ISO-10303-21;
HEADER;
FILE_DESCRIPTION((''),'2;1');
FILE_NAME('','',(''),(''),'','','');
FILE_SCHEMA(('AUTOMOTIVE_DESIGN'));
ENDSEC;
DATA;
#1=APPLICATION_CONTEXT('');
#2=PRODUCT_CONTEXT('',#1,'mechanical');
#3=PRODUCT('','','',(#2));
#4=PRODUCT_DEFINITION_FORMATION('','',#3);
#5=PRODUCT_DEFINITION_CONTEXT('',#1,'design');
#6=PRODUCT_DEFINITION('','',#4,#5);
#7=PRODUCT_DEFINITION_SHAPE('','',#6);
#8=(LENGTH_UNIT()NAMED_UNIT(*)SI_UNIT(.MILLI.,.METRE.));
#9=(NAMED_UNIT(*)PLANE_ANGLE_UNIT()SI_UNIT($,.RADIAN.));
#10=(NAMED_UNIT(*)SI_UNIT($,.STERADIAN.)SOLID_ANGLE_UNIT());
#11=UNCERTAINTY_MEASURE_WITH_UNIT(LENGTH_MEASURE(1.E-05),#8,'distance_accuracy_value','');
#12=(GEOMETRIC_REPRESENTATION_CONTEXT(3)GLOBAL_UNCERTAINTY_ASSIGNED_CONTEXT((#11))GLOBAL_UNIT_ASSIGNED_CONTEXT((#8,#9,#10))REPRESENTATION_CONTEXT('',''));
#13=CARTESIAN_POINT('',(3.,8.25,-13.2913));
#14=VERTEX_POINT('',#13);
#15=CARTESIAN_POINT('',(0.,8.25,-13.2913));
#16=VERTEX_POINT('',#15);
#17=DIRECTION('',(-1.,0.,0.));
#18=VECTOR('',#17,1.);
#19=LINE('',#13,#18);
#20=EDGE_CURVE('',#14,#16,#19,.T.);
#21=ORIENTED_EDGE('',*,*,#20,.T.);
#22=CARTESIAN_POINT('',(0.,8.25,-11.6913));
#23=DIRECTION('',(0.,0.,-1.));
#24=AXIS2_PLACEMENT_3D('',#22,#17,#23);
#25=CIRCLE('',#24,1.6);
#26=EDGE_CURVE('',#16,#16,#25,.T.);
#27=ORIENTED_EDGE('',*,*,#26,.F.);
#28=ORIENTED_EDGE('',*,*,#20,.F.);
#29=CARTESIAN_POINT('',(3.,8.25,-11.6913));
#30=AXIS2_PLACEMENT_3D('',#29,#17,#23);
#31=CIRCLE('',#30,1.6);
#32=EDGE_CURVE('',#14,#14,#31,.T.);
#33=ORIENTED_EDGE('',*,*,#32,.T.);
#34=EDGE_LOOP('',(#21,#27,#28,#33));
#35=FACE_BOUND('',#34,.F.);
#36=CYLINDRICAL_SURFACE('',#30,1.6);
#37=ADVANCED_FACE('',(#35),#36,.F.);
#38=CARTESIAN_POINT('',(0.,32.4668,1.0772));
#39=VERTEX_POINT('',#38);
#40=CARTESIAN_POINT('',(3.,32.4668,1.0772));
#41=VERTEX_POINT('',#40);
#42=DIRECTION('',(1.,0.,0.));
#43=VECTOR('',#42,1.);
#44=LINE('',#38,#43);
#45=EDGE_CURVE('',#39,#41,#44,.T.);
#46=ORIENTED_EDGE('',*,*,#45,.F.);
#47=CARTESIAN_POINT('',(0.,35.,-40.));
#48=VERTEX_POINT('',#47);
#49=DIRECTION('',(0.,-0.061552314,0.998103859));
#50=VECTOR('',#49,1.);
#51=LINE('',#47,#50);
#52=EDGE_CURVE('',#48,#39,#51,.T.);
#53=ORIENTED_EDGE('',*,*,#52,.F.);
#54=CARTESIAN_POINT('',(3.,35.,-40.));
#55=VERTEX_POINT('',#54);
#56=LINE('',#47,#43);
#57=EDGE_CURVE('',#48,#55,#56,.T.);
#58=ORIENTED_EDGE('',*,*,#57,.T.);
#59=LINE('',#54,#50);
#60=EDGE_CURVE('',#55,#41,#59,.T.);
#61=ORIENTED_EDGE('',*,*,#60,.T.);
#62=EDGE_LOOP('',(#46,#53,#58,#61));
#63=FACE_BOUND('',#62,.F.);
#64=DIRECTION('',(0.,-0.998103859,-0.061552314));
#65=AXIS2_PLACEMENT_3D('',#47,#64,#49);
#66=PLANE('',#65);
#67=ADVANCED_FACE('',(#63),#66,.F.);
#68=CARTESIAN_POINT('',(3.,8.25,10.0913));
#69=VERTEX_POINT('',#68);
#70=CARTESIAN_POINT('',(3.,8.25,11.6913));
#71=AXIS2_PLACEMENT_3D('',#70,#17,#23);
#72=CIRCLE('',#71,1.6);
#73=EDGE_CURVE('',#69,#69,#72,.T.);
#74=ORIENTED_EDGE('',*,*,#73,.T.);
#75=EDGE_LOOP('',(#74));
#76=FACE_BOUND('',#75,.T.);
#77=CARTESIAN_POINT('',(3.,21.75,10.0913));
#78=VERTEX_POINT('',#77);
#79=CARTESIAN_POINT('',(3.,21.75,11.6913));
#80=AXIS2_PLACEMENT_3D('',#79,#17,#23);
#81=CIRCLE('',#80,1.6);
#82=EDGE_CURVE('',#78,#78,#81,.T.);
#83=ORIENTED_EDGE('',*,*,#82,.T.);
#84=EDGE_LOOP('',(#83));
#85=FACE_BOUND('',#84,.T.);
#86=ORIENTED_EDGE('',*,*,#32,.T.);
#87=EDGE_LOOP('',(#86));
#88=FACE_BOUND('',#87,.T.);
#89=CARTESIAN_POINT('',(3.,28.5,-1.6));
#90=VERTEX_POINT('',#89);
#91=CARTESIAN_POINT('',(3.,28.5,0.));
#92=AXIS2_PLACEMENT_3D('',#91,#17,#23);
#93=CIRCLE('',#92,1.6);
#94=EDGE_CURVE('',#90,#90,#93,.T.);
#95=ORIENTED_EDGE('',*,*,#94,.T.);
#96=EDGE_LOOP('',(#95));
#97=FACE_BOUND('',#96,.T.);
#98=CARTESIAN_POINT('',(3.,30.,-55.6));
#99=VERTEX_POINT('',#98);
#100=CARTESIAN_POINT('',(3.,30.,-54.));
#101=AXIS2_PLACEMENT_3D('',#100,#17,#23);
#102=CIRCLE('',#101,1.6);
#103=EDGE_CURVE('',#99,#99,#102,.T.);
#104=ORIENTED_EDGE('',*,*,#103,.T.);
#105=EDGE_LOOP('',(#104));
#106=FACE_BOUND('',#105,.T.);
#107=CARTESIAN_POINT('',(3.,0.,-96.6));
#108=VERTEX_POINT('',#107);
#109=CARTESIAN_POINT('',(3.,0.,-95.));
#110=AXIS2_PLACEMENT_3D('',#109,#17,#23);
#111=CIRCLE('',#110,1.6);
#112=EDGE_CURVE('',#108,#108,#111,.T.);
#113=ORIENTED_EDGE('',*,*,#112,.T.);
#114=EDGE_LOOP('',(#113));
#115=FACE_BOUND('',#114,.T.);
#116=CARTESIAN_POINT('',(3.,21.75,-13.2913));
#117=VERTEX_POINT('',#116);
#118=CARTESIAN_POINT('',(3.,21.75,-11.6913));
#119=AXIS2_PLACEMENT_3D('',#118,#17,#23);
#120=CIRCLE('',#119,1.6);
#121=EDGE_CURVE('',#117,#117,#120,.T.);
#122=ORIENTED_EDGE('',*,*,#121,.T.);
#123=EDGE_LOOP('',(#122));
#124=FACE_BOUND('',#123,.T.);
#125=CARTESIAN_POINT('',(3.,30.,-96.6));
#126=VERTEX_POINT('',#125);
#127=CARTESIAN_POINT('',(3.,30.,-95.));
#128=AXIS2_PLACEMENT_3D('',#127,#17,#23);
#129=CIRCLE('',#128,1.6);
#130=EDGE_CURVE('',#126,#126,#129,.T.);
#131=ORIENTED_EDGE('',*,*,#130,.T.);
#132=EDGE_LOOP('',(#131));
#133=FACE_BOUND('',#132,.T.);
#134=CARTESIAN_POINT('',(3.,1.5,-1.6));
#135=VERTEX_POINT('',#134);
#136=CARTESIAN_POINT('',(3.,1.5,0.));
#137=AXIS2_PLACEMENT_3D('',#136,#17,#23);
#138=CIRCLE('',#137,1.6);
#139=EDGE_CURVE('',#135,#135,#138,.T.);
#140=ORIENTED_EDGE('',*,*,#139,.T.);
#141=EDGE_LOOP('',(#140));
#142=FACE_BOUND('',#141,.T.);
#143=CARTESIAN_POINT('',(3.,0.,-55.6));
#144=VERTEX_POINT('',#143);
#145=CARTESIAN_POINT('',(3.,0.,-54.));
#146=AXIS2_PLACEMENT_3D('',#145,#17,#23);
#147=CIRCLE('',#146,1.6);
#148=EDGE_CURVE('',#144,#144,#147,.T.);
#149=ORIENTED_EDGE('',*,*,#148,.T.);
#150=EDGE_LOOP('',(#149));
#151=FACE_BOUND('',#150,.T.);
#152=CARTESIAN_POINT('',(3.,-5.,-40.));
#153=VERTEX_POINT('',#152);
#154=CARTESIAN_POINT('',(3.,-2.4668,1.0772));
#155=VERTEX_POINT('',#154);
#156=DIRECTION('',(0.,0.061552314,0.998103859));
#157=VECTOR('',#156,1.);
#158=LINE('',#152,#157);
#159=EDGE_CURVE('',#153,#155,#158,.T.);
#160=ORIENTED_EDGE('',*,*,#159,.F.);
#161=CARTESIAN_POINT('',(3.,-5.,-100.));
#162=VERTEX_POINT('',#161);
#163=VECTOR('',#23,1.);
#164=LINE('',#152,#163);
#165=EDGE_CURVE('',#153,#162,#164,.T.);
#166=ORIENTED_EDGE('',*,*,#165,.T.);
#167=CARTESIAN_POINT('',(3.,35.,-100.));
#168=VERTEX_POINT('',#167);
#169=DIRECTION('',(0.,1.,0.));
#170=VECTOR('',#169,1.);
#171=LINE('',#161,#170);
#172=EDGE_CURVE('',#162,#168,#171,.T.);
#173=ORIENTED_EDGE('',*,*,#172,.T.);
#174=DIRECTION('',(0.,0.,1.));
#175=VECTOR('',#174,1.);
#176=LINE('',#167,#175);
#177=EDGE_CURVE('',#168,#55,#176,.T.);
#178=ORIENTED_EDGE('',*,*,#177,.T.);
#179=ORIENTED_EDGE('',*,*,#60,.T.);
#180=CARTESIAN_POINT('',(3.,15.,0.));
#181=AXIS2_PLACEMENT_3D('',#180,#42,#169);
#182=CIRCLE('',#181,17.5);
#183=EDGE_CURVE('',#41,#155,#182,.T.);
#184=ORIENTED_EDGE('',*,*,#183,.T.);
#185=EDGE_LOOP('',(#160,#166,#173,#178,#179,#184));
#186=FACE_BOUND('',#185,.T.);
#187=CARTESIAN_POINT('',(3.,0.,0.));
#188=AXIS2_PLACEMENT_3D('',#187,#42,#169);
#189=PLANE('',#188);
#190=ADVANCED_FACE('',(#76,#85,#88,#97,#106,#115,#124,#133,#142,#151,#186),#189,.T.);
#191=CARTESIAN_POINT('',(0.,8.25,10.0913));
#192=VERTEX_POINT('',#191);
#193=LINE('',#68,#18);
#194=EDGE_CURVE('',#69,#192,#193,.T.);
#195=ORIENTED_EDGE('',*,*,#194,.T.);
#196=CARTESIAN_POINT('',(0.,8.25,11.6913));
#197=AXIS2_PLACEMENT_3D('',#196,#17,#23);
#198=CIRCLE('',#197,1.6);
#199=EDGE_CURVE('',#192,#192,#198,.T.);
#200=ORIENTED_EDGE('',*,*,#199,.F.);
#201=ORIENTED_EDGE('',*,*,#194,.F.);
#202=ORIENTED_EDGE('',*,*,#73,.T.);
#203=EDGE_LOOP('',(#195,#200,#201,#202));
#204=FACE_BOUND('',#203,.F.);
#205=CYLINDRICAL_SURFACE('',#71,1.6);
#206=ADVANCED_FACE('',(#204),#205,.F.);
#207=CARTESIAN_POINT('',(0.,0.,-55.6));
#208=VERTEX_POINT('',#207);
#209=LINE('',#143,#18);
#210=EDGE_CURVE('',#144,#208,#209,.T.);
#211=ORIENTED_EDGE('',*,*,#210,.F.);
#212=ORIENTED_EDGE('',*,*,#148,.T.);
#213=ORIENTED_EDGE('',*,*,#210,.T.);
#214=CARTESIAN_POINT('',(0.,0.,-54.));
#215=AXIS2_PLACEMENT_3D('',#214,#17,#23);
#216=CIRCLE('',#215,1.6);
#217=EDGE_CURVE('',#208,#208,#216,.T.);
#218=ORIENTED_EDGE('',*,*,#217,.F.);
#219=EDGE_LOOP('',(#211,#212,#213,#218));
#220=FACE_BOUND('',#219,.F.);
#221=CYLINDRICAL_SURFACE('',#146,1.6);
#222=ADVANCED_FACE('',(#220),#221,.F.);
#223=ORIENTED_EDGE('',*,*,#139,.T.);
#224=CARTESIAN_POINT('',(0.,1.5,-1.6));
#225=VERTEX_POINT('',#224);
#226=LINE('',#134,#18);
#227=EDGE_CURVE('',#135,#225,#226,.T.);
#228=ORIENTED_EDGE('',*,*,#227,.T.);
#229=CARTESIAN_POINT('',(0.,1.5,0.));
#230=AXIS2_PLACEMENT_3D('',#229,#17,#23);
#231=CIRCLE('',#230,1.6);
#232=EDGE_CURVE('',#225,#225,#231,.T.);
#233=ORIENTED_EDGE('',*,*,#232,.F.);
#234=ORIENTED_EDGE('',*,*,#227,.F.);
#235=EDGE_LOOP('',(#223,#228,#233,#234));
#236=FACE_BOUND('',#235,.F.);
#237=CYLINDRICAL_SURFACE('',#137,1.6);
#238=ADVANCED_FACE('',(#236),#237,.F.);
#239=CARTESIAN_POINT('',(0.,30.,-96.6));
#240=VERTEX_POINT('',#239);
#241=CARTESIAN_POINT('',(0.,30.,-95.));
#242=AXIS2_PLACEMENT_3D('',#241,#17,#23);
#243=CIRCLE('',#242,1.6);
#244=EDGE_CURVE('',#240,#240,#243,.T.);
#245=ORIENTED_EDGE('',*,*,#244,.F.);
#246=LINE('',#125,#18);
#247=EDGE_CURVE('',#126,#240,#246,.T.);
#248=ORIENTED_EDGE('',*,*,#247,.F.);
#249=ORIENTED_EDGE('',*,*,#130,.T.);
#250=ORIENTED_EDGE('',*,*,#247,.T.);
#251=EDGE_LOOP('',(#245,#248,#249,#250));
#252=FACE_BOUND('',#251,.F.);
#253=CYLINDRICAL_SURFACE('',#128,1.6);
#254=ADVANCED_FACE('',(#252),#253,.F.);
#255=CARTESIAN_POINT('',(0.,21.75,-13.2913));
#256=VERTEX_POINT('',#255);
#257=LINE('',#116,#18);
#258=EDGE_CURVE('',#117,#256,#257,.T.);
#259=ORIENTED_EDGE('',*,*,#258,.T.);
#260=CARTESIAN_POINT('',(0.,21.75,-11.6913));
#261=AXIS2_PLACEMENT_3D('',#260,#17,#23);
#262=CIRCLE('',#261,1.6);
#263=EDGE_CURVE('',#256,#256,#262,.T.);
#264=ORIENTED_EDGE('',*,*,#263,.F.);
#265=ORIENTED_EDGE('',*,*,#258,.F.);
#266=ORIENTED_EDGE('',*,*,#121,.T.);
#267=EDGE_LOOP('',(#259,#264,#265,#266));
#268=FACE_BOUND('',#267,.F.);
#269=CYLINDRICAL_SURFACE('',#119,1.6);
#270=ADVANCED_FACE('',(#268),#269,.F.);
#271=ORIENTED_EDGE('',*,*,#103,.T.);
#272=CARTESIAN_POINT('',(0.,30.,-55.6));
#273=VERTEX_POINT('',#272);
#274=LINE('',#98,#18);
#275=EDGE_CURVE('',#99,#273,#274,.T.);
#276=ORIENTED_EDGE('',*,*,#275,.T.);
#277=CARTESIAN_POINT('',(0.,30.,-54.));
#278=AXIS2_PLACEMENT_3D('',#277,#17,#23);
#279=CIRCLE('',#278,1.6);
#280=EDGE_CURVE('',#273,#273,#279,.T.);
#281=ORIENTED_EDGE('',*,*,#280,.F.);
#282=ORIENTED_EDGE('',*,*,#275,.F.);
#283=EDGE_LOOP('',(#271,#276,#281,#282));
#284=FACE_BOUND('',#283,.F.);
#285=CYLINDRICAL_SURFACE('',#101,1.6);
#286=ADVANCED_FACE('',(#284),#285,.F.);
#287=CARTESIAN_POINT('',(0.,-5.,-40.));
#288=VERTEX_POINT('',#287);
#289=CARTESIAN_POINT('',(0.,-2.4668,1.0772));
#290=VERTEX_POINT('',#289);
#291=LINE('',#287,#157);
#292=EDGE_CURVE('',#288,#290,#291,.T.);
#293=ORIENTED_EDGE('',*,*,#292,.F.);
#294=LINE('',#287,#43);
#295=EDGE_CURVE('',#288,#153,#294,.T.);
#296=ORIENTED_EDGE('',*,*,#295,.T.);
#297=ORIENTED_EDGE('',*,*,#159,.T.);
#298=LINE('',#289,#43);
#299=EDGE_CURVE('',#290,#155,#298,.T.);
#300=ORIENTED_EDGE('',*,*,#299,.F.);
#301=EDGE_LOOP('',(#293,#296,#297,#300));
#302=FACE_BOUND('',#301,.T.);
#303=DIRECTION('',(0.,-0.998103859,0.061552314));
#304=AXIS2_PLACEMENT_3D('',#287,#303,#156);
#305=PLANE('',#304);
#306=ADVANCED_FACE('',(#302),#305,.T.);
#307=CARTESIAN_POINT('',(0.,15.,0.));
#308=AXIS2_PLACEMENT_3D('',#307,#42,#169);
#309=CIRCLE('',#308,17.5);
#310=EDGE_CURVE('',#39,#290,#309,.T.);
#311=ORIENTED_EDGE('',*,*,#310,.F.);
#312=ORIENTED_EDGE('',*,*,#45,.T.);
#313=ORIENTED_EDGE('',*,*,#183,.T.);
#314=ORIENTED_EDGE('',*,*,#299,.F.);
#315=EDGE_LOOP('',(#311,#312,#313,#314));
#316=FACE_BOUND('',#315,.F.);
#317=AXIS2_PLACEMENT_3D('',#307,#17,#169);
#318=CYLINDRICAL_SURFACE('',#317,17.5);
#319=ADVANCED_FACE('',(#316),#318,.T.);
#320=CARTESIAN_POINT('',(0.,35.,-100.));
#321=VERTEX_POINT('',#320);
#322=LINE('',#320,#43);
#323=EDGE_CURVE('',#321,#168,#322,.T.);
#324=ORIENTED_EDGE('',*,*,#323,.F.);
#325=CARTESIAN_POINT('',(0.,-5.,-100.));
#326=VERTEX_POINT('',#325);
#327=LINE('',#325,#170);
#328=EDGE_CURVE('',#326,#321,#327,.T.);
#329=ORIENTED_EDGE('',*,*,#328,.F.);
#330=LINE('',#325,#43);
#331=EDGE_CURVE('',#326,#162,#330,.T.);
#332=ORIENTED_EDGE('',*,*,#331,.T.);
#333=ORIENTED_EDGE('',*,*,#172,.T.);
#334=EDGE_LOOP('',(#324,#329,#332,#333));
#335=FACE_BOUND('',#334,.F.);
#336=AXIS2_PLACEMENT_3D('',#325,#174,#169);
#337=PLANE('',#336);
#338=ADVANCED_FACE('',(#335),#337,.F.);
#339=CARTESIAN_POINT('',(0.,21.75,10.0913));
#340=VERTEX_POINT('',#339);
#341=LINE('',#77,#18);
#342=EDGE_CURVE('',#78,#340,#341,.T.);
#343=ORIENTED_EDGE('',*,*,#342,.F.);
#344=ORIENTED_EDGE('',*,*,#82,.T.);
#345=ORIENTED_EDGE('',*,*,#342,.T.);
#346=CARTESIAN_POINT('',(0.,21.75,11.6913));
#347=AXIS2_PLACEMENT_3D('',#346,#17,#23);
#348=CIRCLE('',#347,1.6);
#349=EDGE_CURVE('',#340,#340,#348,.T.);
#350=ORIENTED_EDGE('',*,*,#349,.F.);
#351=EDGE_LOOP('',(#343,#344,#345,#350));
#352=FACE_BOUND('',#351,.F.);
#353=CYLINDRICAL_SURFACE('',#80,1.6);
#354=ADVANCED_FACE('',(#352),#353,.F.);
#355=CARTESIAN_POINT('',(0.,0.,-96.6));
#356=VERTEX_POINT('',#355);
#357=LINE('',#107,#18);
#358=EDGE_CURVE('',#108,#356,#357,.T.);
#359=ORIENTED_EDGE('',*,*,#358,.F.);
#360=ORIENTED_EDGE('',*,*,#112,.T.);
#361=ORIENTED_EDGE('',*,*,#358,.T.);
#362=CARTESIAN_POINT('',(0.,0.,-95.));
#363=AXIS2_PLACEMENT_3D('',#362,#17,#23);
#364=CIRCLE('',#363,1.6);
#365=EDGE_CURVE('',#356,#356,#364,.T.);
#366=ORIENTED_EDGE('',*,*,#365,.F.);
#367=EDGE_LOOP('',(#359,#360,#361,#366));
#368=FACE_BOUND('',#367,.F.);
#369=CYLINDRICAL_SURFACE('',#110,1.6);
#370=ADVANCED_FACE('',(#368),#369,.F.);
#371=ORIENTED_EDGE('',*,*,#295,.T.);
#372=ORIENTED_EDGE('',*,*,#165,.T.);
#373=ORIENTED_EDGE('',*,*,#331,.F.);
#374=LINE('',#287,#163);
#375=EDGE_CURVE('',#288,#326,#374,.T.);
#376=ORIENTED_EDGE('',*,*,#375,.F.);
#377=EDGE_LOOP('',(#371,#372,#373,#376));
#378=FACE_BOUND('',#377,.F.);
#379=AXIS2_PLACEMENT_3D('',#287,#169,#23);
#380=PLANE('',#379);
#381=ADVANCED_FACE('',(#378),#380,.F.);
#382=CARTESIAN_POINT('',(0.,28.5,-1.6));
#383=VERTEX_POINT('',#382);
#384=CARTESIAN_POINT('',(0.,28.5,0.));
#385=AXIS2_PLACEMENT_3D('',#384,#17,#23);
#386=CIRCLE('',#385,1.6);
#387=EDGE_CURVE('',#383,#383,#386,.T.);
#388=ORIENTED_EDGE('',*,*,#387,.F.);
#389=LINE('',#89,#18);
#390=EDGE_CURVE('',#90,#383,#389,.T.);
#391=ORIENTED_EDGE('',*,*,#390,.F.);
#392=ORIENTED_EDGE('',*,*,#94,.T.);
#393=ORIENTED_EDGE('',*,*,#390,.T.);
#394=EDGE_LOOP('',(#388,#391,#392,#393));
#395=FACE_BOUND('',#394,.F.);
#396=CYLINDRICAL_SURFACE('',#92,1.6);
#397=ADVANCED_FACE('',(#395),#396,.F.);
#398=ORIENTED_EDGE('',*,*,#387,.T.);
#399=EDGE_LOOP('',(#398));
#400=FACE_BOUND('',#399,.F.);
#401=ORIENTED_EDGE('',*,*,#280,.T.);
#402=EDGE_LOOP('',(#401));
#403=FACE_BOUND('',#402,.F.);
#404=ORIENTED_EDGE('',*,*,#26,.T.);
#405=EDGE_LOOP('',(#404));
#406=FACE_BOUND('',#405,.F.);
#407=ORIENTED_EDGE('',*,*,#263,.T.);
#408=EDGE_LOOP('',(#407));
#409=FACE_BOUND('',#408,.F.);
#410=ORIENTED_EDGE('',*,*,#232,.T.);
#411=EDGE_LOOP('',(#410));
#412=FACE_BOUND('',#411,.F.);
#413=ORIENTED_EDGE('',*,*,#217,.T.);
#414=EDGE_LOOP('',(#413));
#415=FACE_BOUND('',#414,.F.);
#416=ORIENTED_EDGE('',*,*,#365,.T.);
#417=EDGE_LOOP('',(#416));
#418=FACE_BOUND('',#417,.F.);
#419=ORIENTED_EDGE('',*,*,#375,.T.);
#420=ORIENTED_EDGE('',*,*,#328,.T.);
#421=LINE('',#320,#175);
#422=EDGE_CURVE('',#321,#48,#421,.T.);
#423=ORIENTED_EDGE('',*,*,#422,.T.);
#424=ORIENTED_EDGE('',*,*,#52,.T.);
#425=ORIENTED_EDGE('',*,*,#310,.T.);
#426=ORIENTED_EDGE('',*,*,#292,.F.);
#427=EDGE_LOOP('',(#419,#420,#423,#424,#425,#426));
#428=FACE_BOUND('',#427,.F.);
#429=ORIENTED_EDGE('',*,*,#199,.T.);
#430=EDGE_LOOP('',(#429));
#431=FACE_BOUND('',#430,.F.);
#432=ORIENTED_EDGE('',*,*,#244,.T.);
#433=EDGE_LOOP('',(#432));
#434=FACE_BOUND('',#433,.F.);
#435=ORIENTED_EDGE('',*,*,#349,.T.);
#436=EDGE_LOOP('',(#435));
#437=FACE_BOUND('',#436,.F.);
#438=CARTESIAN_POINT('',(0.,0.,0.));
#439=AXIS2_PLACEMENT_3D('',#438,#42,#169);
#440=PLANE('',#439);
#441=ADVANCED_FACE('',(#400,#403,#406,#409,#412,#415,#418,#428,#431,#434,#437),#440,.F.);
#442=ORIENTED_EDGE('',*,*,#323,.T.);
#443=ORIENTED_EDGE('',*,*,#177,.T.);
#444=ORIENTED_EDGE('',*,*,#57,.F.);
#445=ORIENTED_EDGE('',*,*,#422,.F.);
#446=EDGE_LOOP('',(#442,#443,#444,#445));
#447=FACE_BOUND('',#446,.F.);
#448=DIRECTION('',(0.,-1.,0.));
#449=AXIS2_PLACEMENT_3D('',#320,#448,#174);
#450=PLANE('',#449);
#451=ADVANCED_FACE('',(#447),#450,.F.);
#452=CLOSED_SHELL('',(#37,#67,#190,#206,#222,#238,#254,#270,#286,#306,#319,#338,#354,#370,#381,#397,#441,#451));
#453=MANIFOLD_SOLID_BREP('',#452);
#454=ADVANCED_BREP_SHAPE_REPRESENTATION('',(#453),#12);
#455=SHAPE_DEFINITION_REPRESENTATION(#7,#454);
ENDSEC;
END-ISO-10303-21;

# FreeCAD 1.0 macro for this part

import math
import FreeCAD as App
import Part
import Sketcher
Q = App.Units.Quantity

doc = App.newDocument("Part")
body = doc.addObject("PartDesign::Body", "Body")

sketch1 = doc.addObject("Sketcher::SketchObject", "Sketch")
body.addObject(sketch1)
sketch1.AttachmentSupport = (doc.YZ_Plane, [""])
sketch1.MapMode = "FlatFace"
sketch1.addGeometry([
    Part.LineSegment(App.Vector(35, -100, 0), App.Vector(35, -40, 0)),
    Part.LineSegment(App.Vector(35, -40, 0), App.Vector(32.4668, 1.0772, 0)),
    Part.ArcOfCircle(Part.Circle(App.Vector(15, 0, 0), App.Vector(0, 0, 1), 17.5), math.radians(3.529035), math.radians(176.470965)),
    Part.LineSegment(App.Vector(-2.4668, 1.0772, 0), App.Vector(-5, -40, 0)),
    Part.LineSegment(App.Vector(-5, -40, 0), App.Vector(-5, -100, 0)),
    Part.LineSegment(App.Vector(-5, -100, 0), App.Vector(35, -100, 0)),
], False)
sketch1.addConstraint([
    Sketcher.Constraint("Coincident", 0, 2, 1, 1),
    Sketcher.Constraint("Tangent", 1, 2, 2, 1),
    Sketcher.Constraint("Tangent", 2, 2, 3, 1),
    Sketcher.Constraint("Coincident", 3, 2, 4, 1),
    Sketcher.Constraint("Coincident", 4, 2, 5, 1),
    Sketcher.Constraint("Coincident", 5, 2, 0, 1),
    Sketcher.Constraint("Vertical", 0),
    Sketcher.Constraint("Vertical", 4),
    Sketcher.Constraint("Horizontal", 5),
    Sketcher.Constraint("PointOnObject", 2, 3, -1),
    Sketcher.Constraint("Horizontal", 1, 2, 2, 2),
    Sketcher.Constraint("Horizontal", 0, 2, 3, 2),
    Sketcher.Constraint("Radius", 2, Q("17.5 mm")),
    Sketcher.Constraint("DistanceX", 5, 1, 5, 2, Q("40 mm")),
    Sketcher.Constraint("DistanceY", 0, 1, 0, 2, Q("60 mm")),
    Sketcher.Constraint("DistanceX", -1, 1, 0, 2, Q("35 mm")),
    Sketcher.Constraint("DistanceY", 0, 2, -1, 1, Q("40 mm")),
])
pad1 = doc.addObject("PartDesign::Pad", "Pad")
body.addObject(pad1)
pad1.Profile = sketch1
pad1.Length = 3

sketch2 = doc.addObject("Sketcher::SketchObject", "Sketch001")
body.addObject(sketch2)
sketch2.AttachmentSupport = (doc.YZ_Plane, [""])
sketch2.MapMode = "FlatFace"
sketch2.AttachmentOffset = App.Placement(App.Vector(0, 0, 3), App.Rotation())
sketch2.addGeometry([
    Part.Circle(App.Vector(30, -54, 0), App.Vector(0, 0, 1), 1.6),
    Part.Circle(App.Vector(0, -54, 0), App.Vector(0, 0, 1), 1.6),
    Part.Circle(App.Vector(0, -95, 0), App.Vector(0, 0, 1), 1.6),
    Part.Circle(App.Vector(30, -95, 0), App.Vector(0, 0, 1), 1.6),
], False)
sketch2.addConstraint([
    Sketcher.Constraint("Equal", 0, 1),
    Sketcher.Constraint("Equal", 1, 2),
    Sketcher.Constraint("Equal", 2, 3),
    Sketcher.Constraint("PointOnObject", 1, 3, -2),
    Sketcher.Constraint("PointOnObject", 2, 3, -2),
    Sketcher.Constraint("Horizontal", 0, 3, 1, 3),
    Sketcher.Constraint("Horizontal", 2, 3, 3, 3),
    Sketcher.Constraint("Vertical", 0, 3, 3, 3),
    Sketcher.Constraint("Diameter", 0, Q("3.2 mm")),
    Sketcher.Constraint("DistanceX", -1, 1, 0, 3, Q("30 mm")),
    Sketcher.Constraint("DistanceY", 0, 3, -1, 1, Q("54 mm")),
    Sketcher.Constraint("DistanceY", 2, 3, -1, 1, Q("95 mm")),
])
doc.recompute()
hole = doc.addObject("PartDesign::Hole", "Hole")
body.addObject(hole)
hole.Profile = sketch2
hole.ThreadType = "None"
hole.Diameter = 3.2
hole.DepthType = "ThroughAll"

sketch3 = doc.addObject("Sketcher::SketchObject", "Sketch002")
body.addObject(sketch3)
sketch3.AttachmentSupport = (doc.YZ_Plane, [""])
sketch3.MapMode = "FlatFace"
sketch3.AttachmentOffset = App.Placement(App.Vector(0, 0, 3), App.Rotation())
sketch3.addGeometry([
    Part.Circle(App.Vector(1.5, 0, 0), App.Vector(0, 0, 1), 1.6),
    Part.Circle(App.Vector(8.25, -11.6913, 0), App.Vector(0, 0, 1), 1.6),
    Part.Circle(App.Vector(21.75, -11.6913, 0), App.Vector(0, 0, 1), 1.6),
    Part.Circle(App.Vector(28.5, 0, 0), App.Vector(0, 0, 1), 1.6),
    Part.Circle(App.Vector(21.75, 11.6913, 0), App.Vector(0, 0, 1), 1.6),
    Part.Circle(App.Vector(8.25, 11.6913, 0), App.Vector(0, 0, 1), 1.6),
], False)
sketch3.addConstraint([
    Sketcher.Constraint("Equal", 0, 1),
    Sketcher.Constraint("Equal", 1, 2),
    Sketcher.Constraint("Equal", 2, 3),
    Sketcher.Constraint("Equal", 3, 4),
    Sketcher.Constraint("Equal", 4, 5),
    Sketcher.Constraint("Symmetric", 2, 3, 4, 3, -1),
    Sketcher.Constraint("Symmetric", 1, 3, 5, 3, -1),
    Sketcher.Constraint("PointOnObject", 0, 3, -1),
    Sketcher.Constraint("PointOnObject", 3, 3, -1),
    Sketcher.Constraint("Horizontal", 1, 3, 2, 3),
    Sketcher.Constraint("Diameter", 0, Q("3.2 mm")),
    Sketcher.Constraint("DistanceX", 0, 3, 3, 3, Q("27 mm")),
    Sketcher.Constraint("DistanceX", -1, 1, 0, 3, Q("1.5 mm")),
    Sketcher.Constraint("DistanceX", 1, 3, 2, 3, Q("13.5 mm")),
    Sketcher.Constraint("DistanceX", -1, 1, 1, 3, Q("8.25 mm")),
    Sketcher.Constraint("DistanceY", 1, 3, -1, 1, Q("11.6913 mm")),
])
doc.recompute()
hole2 = doc.addObject("PartDesign::Hole", "Hole001")
body.addObject(hole2)
hole2.Profile = sketch3
hole2.ThreadType = "None"
hole2.Diameter = 3.2
hole2.DepthType = "ThroughAll"

doc.recompute()
